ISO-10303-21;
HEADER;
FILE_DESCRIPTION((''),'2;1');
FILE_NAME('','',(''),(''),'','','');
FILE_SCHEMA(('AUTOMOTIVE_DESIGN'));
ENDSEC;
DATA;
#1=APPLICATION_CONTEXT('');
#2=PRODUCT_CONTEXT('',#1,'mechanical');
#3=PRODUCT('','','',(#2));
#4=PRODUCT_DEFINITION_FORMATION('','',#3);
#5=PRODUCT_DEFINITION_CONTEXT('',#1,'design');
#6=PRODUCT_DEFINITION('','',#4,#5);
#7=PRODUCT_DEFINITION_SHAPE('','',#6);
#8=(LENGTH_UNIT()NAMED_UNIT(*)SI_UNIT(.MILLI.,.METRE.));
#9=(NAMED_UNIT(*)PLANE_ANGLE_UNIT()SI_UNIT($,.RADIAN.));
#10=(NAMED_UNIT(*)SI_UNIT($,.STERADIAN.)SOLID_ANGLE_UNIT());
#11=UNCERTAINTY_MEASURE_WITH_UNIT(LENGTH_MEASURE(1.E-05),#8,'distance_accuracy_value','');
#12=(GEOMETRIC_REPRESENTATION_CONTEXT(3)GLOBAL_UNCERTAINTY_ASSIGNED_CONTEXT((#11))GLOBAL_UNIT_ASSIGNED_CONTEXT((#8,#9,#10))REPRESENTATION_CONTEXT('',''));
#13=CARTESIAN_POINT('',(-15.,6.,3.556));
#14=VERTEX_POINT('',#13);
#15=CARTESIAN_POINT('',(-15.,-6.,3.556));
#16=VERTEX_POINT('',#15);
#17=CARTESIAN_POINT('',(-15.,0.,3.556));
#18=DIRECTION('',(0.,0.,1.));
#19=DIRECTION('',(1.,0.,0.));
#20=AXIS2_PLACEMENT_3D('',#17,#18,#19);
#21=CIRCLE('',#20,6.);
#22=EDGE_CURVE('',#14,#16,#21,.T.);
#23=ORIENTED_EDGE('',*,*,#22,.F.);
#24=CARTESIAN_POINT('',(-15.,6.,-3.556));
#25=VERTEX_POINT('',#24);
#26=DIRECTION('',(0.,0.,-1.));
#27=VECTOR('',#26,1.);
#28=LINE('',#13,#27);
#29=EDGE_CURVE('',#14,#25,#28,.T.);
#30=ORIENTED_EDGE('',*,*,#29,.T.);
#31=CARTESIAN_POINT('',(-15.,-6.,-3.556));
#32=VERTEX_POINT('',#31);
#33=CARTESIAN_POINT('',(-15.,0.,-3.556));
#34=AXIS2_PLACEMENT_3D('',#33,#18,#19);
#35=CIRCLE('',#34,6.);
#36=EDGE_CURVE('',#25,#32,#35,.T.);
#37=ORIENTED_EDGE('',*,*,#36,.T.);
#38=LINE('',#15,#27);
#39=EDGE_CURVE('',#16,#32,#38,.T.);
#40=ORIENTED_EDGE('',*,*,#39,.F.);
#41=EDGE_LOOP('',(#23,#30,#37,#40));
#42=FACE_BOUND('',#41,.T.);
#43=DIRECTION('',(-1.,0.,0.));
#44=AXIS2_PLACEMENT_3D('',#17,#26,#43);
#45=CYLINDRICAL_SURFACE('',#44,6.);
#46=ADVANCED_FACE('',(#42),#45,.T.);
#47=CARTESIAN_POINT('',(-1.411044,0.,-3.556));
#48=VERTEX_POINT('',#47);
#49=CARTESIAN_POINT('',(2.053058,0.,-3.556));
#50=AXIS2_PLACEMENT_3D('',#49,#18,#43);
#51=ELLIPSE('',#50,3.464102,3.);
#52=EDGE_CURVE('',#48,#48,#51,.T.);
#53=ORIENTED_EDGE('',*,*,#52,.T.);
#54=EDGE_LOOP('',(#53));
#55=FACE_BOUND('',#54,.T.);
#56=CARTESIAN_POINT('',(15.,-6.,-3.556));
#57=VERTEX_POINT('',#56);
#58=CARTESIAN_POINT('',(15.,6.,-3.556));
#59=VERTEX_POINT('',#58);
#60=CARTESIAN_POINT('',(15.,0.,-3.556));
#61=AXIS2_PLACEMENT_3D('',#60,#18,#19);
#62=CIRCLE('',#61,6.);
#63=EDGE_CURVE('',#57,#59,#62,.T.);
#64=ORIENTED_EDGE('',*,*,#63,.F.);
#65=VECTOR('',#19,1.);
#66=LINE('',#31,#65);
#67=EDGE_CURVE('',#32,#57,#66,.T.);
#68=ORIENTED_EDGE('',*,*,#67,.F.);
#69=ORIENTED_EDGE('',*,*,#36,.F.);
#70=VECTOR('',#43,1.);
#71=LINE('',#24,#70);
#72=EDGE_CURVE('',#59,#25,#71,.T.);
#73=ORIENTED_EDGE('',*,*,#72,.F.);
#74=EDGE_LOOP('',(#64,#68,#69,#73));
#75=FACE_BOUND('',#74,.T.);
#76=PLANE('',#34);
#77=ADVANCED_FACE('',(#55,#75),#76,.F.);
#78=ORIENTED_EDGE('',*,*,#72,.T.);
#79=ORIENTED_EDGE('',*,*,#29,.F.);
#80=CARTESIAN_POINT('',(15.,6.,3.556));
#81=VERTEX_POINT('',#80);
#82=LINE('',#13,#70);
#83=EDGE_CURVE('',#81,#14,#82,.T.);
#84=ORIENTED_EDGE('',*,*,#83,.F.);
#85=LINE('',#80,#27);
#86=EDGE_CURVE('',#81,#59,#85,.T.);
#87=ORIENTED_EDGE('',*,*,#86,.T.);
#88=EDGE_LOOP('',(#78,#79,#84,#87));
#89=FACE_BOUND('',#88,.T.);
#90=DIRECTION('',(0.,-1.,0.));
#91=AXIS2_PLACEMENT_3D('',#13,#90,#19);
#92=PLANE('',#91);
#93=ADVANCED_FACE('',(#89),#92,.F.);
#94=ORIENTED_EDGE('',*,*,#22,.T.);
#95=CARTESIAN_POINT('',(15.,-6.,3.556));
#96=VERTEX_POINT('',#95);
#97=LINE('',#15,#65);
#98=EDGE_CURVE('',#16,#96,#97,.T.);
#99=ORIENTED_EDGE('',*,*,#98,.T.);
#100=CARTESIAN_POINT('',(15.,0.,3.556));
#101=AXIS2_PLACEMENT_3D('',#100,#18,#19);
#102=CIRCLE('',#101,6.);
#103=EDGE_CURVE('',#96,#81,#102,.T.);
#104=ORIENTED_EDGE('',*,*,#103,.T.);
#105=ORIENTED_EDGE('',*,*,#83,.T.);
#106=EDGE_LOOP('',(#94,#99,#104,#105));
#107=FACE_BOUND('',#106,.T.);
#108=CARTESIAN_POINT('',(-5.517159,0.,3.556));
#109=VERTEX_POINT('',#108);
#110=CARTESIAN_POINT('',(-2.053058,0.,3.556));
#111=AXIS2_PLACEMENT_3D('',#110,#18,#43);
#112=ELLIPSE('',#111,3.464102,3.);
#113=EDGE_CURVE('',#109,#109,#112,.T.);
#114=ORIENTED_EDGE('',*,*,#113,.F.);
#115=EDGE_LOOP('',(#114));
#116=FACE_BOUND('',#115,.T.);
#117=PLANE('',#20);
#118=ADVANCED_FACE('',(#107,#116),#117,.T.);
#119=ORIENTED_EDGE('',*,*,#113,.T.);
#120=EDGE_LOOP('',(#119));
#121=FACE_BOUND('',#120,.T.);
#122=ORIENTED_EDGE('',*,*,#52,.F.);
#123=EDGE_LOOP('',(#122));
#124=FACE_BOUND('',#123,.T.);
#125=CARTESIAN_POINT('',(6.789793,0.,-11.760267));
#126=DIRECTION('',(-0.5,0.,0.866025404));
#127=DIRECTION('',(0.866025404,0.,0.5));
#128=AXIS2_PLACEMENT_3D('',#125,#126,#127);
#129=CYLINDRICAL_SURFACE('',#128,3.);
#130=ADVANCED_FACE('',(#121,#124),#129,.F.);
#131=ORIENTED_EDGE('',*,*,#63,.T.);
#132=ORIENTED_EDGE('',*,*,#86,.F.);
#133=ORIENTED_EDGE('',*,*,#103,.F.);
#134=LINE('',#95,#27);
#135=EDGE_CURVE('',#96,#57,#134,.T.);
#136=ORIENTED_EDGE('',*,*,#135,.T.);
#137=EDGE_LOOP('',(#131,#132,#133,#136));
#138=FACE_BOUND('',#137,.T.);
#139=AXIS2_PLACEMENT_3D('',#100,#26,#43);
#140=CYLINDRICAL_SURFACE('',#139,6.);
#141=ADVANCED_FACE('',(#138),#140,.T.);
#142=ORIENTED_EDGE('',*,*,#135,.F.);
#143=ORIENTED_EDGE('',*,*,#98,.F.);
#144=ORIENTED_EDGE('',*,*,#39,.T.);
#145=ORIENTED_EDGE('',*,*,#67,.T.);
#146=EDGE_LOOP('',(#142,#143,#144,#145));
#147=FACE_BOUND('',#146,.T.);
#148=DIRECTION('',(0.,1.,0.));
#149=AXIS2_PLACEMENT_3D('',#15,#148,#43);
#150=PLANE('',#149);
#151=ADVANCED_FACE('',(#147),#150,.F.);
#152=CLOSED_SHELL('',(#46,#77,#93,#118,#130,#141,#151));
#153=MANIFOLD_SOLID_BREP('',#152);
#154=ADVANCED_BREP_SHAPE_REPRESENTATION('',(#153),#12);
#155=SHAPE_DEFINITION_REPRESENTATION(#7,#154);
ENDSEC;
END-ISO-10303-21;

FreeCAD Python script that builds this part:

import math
import FreeCAD as App
import Part
import Sketcher
from FreeCAD import Vector
Q = App.Units.Quantity

doc = App.newDocument("Part")
body = doc.addObject("PartDesign::Body", "Body")

sketch1 = body.newObject("Sketcher::SketchObject", "Sketch")
sketch1.AttachmentSupport = (doc.getObject("XY_Plane"), [""])
sketch1.MapMode = "FlatFace"
sketch1.addGeometry([
    Part.LineSegment(Vector(15, 6, 0), Vector(-15, 6, 0)),
    Part.ArcOfCircle(Part.Circle(Vector(-15, 0, 0), Vector(0, 0, 1), 6), math.radians(90), math.radians(270)),
    Part.LineSegment(Vector(-15, -6, 0), Vector(15, -6, 0)),
    Part.ArcOfCircle(Part.Circle(Vector(15, 0, 0), Vector(0, 0, 1), 6), math.radians(-90), math.radians(90)),
], False)
sketch1.addConstraint([
    Sketcher.Constraint("Tangent", 0, 2, 1, 1),
    Sketcher.Constraint("Tangent", 1, 2, 2, 1),
    Sketcher.Constraint("Tangent", 2, 2, 3, 1),
    Sketcher.Constraint("Tangent", 3, 2, 0, 1),
    Sketcher.Constraint("Horizontal", 0),
    Sketcher.Constraint("Horizontal", 2),
    Sketcher.Constraint("Symmetric", 1, 3, 3, 3, -1, 1),
    Sketcher.Constraint("Radius", 1, Q("6 mm")),
    Sketcher.Constraint("DistanceX", 0, 2, 0, 1, Q("30 mm")),
])
pad1 = body.newObject("PartDesign::Pad", "Pad")
pad1.Profile = sketch1
pad1.Length = 7.112
pad1.Midplane = True

sketch2 = body.newObject("Sketcher::SketchObject", "Sketch001")
sketch2.Placement = App.Placement(Vector(0, 0, 0), App.Rotation(Vector(0, 1, 0), Vector(-0.866025404, 0, -0.5), Vector(-0.5, 0, 0.866025404), "ZXY"))
sketch2.addGeometry(Part.Circle(Vector(0, 0, 0), Vector(0, 0, 1), 3), False)
sketch2.addConstraint([
    Sketcher.Constraint("Coincident", 0, 3, -1, 1),
    Sketcher.Constraint("Diameter", 0, Q("6 mm")),
])
pocket1 = body.newObject("PartDesign::Pocket", "Pocket")
pocket1.Profile = sketch2
pocket1.Type = "ThroughAll"
pocket1.Midplane = True

doc.recompute()
